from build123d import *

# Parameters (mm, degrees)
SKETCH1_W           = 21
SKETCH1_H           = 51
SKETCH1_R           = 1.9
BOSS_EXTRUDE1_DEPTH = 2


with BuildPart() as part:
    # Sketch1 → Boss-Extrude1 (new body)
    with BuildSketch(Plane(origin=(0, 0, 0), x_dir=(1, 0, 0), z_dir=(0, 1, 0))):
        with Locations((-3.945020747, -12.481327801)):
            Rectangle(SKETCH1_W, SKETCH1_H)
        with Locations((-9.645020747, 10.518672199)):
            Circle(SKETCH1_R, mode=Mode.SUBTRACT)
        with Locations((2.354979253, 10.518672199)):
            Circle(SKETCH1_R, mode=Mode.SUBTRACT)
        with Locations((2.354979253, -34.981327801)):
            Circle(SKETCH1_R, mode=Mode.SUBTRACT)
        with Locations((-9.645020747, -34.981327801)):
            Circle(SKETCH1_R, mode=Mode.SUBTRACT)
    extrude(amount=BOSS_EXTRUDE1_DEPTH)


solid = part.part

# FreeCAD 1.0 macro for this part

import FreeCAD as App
import Part
import Sketcher
from FreeCAD import Vector
Q = App.Units.Quantity


def add_polygon(sketch, points):
    """Adds a closed chain of lines whose ends are joined by coincident constraints."""
    first, n = sketch.GeometryCount, len(points)
    for a, b in zip(points, points[1:] + points[:1]):
        sketch.addGeometry(Part.LineSegment(App.Vector(*a, 0), App.Vector(*b, 0)), False)
    for i in range(n):
        sketch.addConstraint(Sketcher.Constraint("Coincident", first + i, 2, first + (i + 1) % n, 1))

doc = App.newDocument("Part")
body = doc.addObject("PartDesign::Body", "Body")

# Sketch on XZ plane
sketch1 = body.newObject("Sketcher::SketchObject", "Sketch")
sketch1.AttachmentSupport = (doc.getObject("XZ_Plane"), [""])
sketch1.MapMode = "FlatFace"
add_polygon(sketch1, [(-14.4, -13), (-14.4, 38), (6.6, 38), (6.6, -13)])  # lines 0-3
sketch1.addGeometry(Part.Circle(Vector(-9.6, 35, 0), Vector(0, 0, 1), 1.9), False)  # 4
sketch1.addGeometry(Part.Circle(Vector(2.4, 35, 0), Vector(0, 0, 1), 1.9), False)  # 5
sketch1.addGeometry(Part.Circle(Vector(-9.6, -10.5, 0), Vector(0, 0, 1), 1.9), False)  # 6
sketch1.addGeometry(Part.Circle(Vector(2.4, -10.5, 0), Vector(0, 0, 1), 1.9), False)  # 7
sketch1.addConstraint([
    Sketcher.Constraint("Vertical", 0),
    Sketcher.Constraint("Horizontal", 1),
    Sketcher.Constraint("Vertical", 2),
    Sketcher.Constraint("Horizontal", 3),
    Sketcher.Constraint("Equal", 4, 5),
    Sketcher.Constraint("Equal", 5, 6),
    Sketcher.Constraint("Equal", 6, 7),
    Sketcher.Constraint("Horizontal", 4, 3, 5, 3),
    Sketcher.Constraint("Horizontal", 6, 3, 7, 3),
    Sketcher.Constraint("Vertical", 4, 3, 6, 3),
    Sketcher.Constraint("Vertical", 5, 3, 7, 3),
    Sketcher.Constraint("Diameter", 4, Q("3.8 mm")),
    Sketcher.Constraint("DistanceX", 1, 1, 1, 2, Q("21 mm")),
    Sketcher.Constraint("DistanceY", 0, 1, 0, 2, Q("51 mm")),
    Sketcher.Constraint("DistanceX", 4, 3, 5, 3, Q("12 mm")),
    Sketcher.Constraint("DistanceY", 4, 3, 0, 2, Q("3 mm")),
    Sketcher.Constraint("DistanceY", 6, 3, 4, 3, Q("45.5 mm")),
    Sketcher.Constraint("DistanceX", 0, 2, 4, 3, Q("4.8 mm")),
    Sketcher.Constraint("DistanceX", 4, 3, -1, 1, Q("9.645021 mm")),
    Sketcher.Constraint("DistanceY", -1, 1, 4, 3, Q("34.981328 mm")),
])
pad1 = body.newObject("PartDesign::Pad", "Pad")
pad1.Profile = sketch1
pad1.Length = 2
pad1.Reversed = True

doc.recompute()
